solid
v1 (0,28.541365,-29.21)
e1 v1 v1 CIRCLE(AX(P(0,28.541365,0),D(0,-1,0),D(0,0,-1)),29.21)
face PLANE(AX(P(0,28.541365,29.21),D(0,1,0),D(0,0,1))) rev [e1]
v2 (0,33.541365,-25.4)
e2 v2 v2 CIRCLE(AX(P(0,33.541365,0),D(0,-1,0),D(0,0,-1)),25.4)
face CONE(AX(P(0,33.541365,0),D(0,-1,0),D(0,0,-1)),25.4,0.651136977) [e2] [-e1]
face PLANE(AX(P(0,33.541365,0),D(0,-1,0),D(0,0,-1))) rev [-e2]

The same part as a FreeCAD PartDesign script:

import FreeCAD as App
import Part
import Sketcher
from FreeCAD import Vector
Q = App.Units.Quantity


def add_polygon(sketch, points):
    """Adds a closed chain of lines whose ends are joined by coincident constraints."""
    first, n = sketch.GeometryCount, len(points)
    for a, b in zip(points, points[1:] + points[:1]):
        sketch.addGeometry(Part.LineSegment(App.Vector(*a, 0), App.Vector(*b, 0)), False)
    for i in range(n):
        sketch.addConstraint(Sketcher.Constraint("Coincident", first + i, 2, first + (i + 1) % n, 1))

doc = App.newDocument("Part")
body = doc.addObject("PartDesign::Body", "Body")

sketch1 = body.newObject("Sketcher::SketchObject", "Sketch")
sketch1.AttachmentSupport = (doc.getObject("YZ_Plane"), [""])
sketch1.MapMode = "FlatFace"
add_polygon(sketch1, [(34, 0), (34, 25), (29, 29), (29, 0)])
sketch1.addConstraint(Sketcher.Constraint("Vertical", 0))
sketch1.addConstraint(Sketcher.Constraint("Vertical", 2))
sketch1.addConstraint(Sketcher.Constraint("Horizontal", 3))
sketch1.addConstraint(Sketcher.Constraint("PointOnObject", 2, 2, -1))
sketch1.addConstraint(Sketcher.Constraint("DistanceY", 0, 1, 0, 2, Q("1 in")))
sketch1.addConstraint(Sketcher.Constraint("DistanceY", 2, 2, 2, 1, Q("1.15 in")))
sketch1.addConstraint(Sketcher.Constraint("DistanceX", 3, 1, 3, 2, 5.0))
sketch1.addConstraint(Sketcher.Constraint("DistanceX", -1, 1, 0, 2, 33.541365))
revolution = body.newObject("PartDesign::Revolution", "Revolution")
revolution.Profile = sketch1
revolution.ReferenceAxis = (sketch1, ["H_Axis"])
revolution.Angle = 360

doc.recompute()
